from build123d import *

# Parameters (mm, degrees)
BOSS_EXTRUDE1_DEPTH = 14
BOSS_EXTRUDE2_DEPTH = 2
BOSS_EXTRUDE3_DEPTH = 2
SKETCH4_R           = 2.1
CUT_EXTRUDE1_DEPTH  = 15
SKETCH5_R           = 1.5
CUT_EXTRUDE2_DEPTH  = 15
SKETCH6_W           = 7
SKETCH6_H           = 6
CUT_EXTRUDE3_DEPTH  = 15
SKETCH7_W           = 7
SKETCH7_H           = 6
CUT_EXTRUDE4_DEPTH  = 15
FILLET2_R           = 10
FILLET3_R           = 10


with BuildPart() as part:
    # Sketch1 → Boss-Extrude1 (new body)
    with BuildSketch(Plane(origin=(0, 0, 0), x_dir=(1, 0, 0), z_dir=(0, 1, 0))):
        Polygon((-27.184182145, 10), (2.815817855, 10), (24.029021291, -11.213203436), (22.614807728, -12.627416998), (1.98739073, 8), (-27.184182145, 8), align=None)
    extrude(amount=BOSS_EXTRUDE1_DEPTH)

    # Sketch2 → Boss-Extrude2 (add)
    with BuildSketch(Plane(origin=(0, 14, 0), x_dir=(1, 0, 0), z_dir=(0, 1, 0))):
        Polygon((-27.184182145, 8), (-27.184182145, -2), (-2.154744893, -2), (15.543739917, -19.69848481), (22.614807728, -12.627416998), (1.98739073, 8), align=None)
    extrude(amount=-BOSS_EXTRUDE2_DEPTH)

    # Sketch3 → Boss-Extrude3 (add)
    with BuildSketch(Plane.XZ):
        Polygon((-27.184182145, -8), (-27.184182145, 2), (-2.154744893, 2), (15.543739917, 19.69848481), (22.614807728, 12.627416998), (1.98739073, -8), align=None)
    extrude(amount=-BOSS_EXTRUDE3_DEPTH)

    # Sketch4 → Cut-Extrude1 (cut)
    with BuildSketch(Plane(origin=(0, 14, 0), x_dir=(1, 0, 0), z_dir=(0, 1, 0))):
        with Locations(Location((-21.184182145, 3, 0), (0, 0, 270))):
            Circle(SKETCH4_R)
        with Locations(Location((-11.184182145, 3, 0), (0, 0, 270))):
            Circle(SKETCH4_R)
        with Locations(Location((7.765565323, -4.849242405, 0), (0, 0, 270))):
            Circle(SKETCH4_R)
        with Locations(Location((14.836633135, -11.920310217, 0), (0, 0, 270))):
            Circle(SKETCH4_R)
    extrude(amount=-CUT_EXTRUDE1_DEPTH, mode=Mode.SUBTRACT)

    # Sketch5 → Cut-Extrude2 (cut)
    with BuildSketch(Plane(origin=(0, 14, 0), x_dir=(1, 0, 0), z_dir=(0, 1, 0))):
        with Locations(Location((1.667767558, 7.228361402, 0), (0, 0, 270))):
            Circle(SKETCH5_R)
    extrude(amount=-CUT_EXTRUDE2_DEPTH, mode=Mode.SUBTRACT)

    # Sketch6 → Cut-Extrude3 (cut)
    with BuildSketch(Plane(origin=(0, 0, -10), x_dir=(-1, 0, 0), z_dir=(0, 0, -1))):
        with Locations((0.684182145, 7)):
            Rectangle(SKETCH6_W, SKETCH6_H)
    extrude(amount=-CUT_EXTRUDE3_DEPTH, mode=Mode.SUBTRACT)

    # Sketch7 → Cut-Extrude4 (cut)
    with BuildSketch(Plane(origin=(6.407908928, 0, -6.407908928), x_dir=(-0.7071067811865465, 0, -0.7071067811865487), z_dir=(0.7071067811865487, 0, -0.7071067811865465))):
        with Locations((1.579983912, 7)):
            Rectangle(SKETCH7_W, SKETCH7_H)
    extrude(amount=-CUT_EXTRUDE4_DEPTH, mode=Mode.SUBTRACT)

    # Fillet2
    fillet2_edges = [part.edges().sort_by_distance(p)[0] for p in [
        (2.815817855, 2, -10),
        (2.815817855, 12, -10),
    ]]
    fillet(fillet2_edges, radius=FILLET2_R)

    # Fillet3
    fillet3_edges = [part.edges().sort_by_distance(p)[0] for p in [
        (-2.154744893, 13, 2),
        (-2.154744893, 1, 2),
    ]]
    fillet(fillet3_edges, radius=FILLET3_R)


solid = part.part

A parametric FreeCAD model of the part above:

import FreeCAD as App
import Part
import Sketcher

V = App.Vector
Q = App.Units.Quantity


def edges_at(feature, points):
    """Names of the edges that pass closest to the given points."""
    edges = feature.Shape.Edges
    near = lambda p: min(range(len(edges)), key=lambda i: edges[i].distToShape(Part.Vertex(*p))[0])
    return sorted({f"Edge{near(p) + 1}" for p in points})


def add_polygon(sketch, points):
    """Adds a closed chain of lines whose ends are joined by coincident constraints."""
    first, n = sketch.GeometryCount, len(points)
    for a, b in zip(points, points[1:] + points[:1]):
        sketch.addGeometry(Part.LineSegment(App.Vector(*a, 0), App.Vector(*b, 0)), False)
    for i in range(n):
        sketch.addConstraint(Sketcher.Constraint("Coincident", first + i, 2, first + (i + 1) % n, 1))

doc = App.newDocument("Part")
body = doc.addObject("PartDesign::Body", "Body")

sketch1 = body.newObject("Sketcher::SketchObject", "Sketch")
sketch1.AttachmentSupport = (doc.getObject("XZ_Plane"), [""])
sketch1.MapMode = "FlatFace"
add_polygon(sketch1, [(2.8, -10), (-27.2, -10), (-27.2, -8), (2, -8), (22.6, 12.6), (24, 11.2)])
sketch1.addConstraint([
    Sketcher.Constraint("Horizontal", 0),
    Sketcher.Constraint("Vertical", 1),
    Sketcher.Constraint("Horizontal", 2),
    Sketcher.Constraint("Perpendicular", 3, 4),
    Sketcher.Constraint("Perpendicular", 4, 5),
    Sketcher.Constraint("DistanceX", 0, 2, 0, 1, 30.0),
    Sketcher.Constraint("DistanceY", 1, 1, 1, 2, 2.0),
    Sketcher.Constraint("Angle", 3, Q("45 deg")),
    Sketcher.Constraint("Distance", 4, 2.0),
    Sketcher.Constraint("Distance", 5, 30.0),
    Sketcher.Constraint("DistanceY", 0, 2, -1, 1, 10.0),
    Sketcher.Constraint("DistanceX", -1, 1, 2, 2, 1.987391),
])
pad1 = body.newObject("PartDesign::Pad", "Pad")
pad1.Profile = sketch1
pad1.Length = 14
pad1.Reversed = True

sketch2 = body.newObject("Sketcher::SketchObject", "Sketch001")
sketch2.AttachmentSupport = (doc.getObject("XZ_Plane"), [""])
sketch2.MapMode = "FlatFace"
sketch2.AttachmentOffset = App.Placement(V(0, 0, -14), App.Rotation())
add_polygon(sketch2, [(-27, -8), (-27, 2), (-2, 2), (16, 20), (23, 13), (2, -8)])
sketch2.addConstraint([
    Sketcher.Constraint("Vertical", 0),
    Sketcher.Constraint("Horizontal", 1),
    Sketcher.Constraint("Horizontal", 5),
    Sketcher.Constraint("Perpendicular", 2, 3),
    Sketcher.Constraint("Perpendicular", 3, 4),
    Sketcher.Constraint("DistanceY", 0, 1, 0, 2, 10.0),
    Sketcher.Constraint("Angle", 2, Q("45 deg")),
    Sketcher.Constraint("Distance", 3, 10.0),
    Sketcher.Constraint("DistanceY", -1, 1, 0, 2, 2.0),
    Sketcher.Constraint("DistanceX", 1, 1, 1, 2, 25.029437),
    Sketcher.Constraint("DistanceX", -1, 1, 2, 2, 15.54374),
    Sketcher.Constraint("DistanceX", -1, 1, 4, 2, 1.987391),
])
pad2 = body.newObject("PartDesign::Pad", "Pad001")
pad2.Profile = sketch2
pad2.Length = 2

sketch3 = body.newObject("Sketcher::SketchObject", "Sketch002")
sketch3.AttachmentSupport = (doc.getObject("XZ_Plane"), [""])
sketch3.MapMode = "FlatFace"
add_polygon(sketch3, [(-27, 2), (-27, -8), (2, -8), (23, 13), (16, 20), (-2, 2)])
sketch3.addConstraint([
    Sketcher.Constraint("Vertical", 0),
    Sketcher.Constraint("Horizontal", 1),
    Sketcher.Constraint("Horizontal", 5),
    Sketcher.Constraint("Perpendicular", 2, 3),
    Sketcher.Constraint("Perpendicular", 3, 4),
    Sketcher.Constraint("DistanceY", 0, 2, 0, 1, 10.0),
    Sketcher.Constraint("Angle", 2, Q("45 deg")),
    Sketcher.Constraint("Distance", 3, 10.0),
    Sketcher.Constraint("DistanceY", 0, 2, -1, 1, 8.0),
    Sketcher.Constraint("DistanceX", 1, 1, 1, 2, 29.171573),
    Sketcher.Constraint("DistanceX", -1, 1, 1, 2, 1.987391),
    Sketcher.Constraint("DistanceX", -1, 1, 3, 2, 15.54374),
])
pad3 = body.newObject("PartDesign::Pad", "Pad002")
pad3.Profile = sketch3
pad3.Length = 2
pad3.Reversed = True

sketch4 = body.newObject("Sketcher::SketchObject", "Sketch003")
sketch4.AttachmentSupport = (doc.getObject("XZ_Plane"), [""])
sketch4.MapMode = "FlatFace"
sketch4.AttachmentOffset = App.Placement(V(0, 0, -14), App.Rotation())
sketch4.addGeometry([
    Part.Circle(V(-21.2, -3, 0), V(0, 0, 1), 2.1),
    Part.Circle(V(-11.2, -3, 0), V(0, 0, 1), 2.1),
    Part.Circle(V(7.8, 4.8, 0), V(0, 0, 1), 2.1),
    Part.Circle(V(14.8, 11.9, 0), V(0, 0, 1), 2.1),
], False)
sketch4.addConstraint([
    Sketcher.Constraint("Equal", 0, 1),
    Sketcher.Constraint("Equal", 1, 2),
    Sketcher.Constraint("Equal", 2, 3),
    Sketcher.Constraint("Horizontal", 0, 3, 1, 3),
    Sketcher.Constraint("Diameter", 0, 4.2),
    Sketcher.Constraint("DistanceY", 0, 3, -1, 1, 3.0),
    Sketcher.Constraint("DistanceX", 0, 3, 1, 3, 10.0),
    Sketcher.Constraint("DistanceY", -1, 1, 3, 3, 11.92031),
    Sketcher.Constraint("DistanceX", 0, 3, -1, 1, 21.184182),
    Sketcher.Constraint("DistanceX", -1, 1, 2, 3, 7.765565),
    Sketcher.Constraint("DistanceY", -1, 1, 2, 3, 4.849242),
    Sketcher.Constraint("DistanceX", -1, 1, 3, 3, 14.836633),
])
pocket1 = body.newObject("PartDesign::Pocket", "Pocket")
pocket1.Profile = sketch4
pocket1.Length = 15
pocket1.Reversed = True

sketch5 = body.newObject("Sketcher::SketchObject", "Sketch004")
sketch5.AttachmentSupport = (doc.getObject("XZ_Plane"), [""])
sketch5.MapMode = "FlatFace"
sketch5.AttachmentOffset = App.Placement(V(0, 0, -14), App.Rotation())
sketch5.addGeometry(Part.Circle(V(1.7, -7.2, 0), V(0, 0, 1), 1.5), False)
sketch5.addConstraint([
    Sketcher.Constraint("Diameter", 0, 3.0),
    Sketcher.Constraint("DistanceY", 0, 3, -1, 1, 7.228361),
    Sketcher.Constraint("DistanceX", -1, 1, 0, 3, 1.667768),
])
pocket2 = body.newObject("PartDesign::Pocket", "Pocket001")
pocket2.Profile = sketch5
pocket2.Length = 15
pocket2.Reversed = True

sketch6 = body.newObject("Sketcher::SketchObject", "Sketch005")
sketch6.AttachmentSupport = (doc.getObject("XY_Plane"), [""])
sketch6.MapMode = "FlatFace"
sketch6.AttachmentOffset = App.Placement(V(0, 0, -10), App.Rotation())
add_polygon(sketch6, [(3, 10), (3, 4), (-4, 4), (-4, 10)])
sketch6.addConstraint([
    Sketcher.Constraint("Vertical", 0),
    Sketcher.Constraint("Horizontal", 1),
    Sketcher.Constraint("Vertical", 2),
    Sketcher.Constraint("Horizontal", 3),
    Sketcher.Constraint("DistanceX", 1, 2, 1, 1, 7.0),
    Sketcher.Constraint("DistanceY", 0, 2, 0, 1, 6.0),
    Sketcher.Constraint("DistanceY", -1, 1, 0, 2, 4.0),
    Sketcher.Constraint("DistanceX", -1, 1, 0, 2, 2.815818),
])
pocket3 = body.newObject("PartDesign::Pocket", "Pocket002")
pocket3.Profile = sketch6
pocket3.Length = 15
pocket3.Reversed = True

sketch7 = body.newObject("Sketcher::SketchObject", "Sketch006")
sketch7.Placement = App.Placement(V(6.407909, 0, -6.407909), App.Rotation(V(-0.707106781, 0, -0.707106781), V(0, 0.999999999, 0), V(0.707106781, 0, -0.707106781), "ZXY"))
add_polygon(sketch7, [(-2, 10), (-2, 4), (5, 4), (5, 10)])
sketch7.addConstraint([
    Sketcher.Constraint("Vertical", 0),
    Sketcher.Constraint("Horizontal", 1),
    Sketcher.Constraint("Vertical", 2),
    Sketcher.Constraint("Horizontal", 3),
    Sketcher.Constraint("DistanceX", 1, 1, 1, 2, 7.0),
    Sketcher.Constraint("DistanceY", 0, 2, 0, 1, 6.0),
    Sketcher.Constraint("DistanceY", -1, 1, 0, 2, 4.0),
    Sketcher.Constraint("DistanceX", 0, 2, -1, 1, 1.920016),
])
pocket4 = body.newObject("PartDesign::Pocket", "Pocket003")
pocket4.Profile = sketch7
pocket4.Length = 15
doc.recompute()

fillet = body.newObject("PartDesign::Fillet", "Fillet")
fillet.Base = (pocket4, edges_at(pocket4, [(2.816, 2, -10), (2.816, 12, -10)]))
fillet.Radius = 10
doc.recompute()

fillet2 = body.newObject("PartDesign::Fillet", "Fillet001")
fillet2.Base = (fillet, edges_at(fillet, [(-2.155, 13, 2), (-2.155, 1, 2)]))
fillet2.Radius = 10

doc.recompute()
